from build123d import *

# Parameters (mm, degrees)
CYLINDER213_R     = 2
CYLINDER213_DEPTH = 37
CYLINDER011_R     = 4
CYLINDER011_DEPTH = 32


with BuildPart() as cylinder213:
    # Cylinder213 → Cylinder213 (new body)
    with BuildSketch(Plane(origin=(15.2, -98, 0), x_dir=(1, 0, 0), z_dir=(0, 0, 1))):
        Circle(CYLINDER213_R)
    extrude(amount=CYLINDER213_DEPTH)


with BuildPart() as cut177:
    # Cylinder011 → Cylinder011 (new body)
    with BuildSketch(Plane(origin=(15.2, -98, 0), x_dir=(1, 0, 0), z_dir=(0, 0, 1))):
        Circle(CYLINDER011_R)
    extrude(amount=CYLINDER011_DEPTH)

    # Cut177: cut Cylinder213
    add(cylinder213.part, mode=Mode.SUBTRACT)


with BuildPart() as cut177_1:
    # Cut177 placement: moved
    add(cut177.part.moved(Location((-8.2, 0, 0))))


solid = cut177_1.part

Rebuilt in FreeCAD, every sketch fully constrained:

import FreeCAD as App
import Part
import Sketcher

V = App.Vector

doc = App.newDocument("Part")
params = doc.addObject("Spreadsheet::Sheet", "Params")
for row, (alias, value) in enumerate([
    ("sketch1_diameter", "4 mm"),
    ("pad1_length", "37 mm"),
    ("sketch2_diameter", "8 mm"),
    ("pad2_length", "32 mm"),
], start=1):
    params.set(f"A{row}", alias)
    params.set(f"B{row}", "=" + value)
    params.setAlias(f"B{row}", alias)

body = doc.addObject("PartDesign::Body", "Body")

# Sketch on XY plane
sketch1 = doc.addObject("Sketcher::SketchObject", "Sketch")
body.addObject(sketch1)
sketch1.AttachmentSupport = (doc.XY_Plane, [""])
sketch1.MapMode = "FlatFace"
sketch1.addGeometry(Part.Circle(V(15.2, -98, 0), V(0, 0, 1), 2), False)
sketch1.addConstraint([
    Sketcher.Constraint("Diameter", 0, 4.0),
    Sketcher.Constraint("DistanceY", 0, 3, -1, 1, 98.0),
    Sketcher.Constraint("DistanceX", -1, 1, 0, 3, 15.2),
])
sketch1.setExpression("Constraints[0]", "Params.sketch1_diameter")
pad1 = doc.addObject("PartDesign::Pad", "Pad")
body.addObject(pad1)
pad1.Profile = sketch1
pad1.setExpression("Length", "Params.pad1_length")
body2 = doc.addObject("PartDesign::Body", "Body001")

# Sketch on XY plane
sketch2 = doc.addObject("Sketcher::SketchObject", "Sketch001")
body2.addObject(sketch2)
sketch2.AttachmentSupport = (doc.getObject("XY_Plane001"), [""])
sketch2.MapMode = "FlatFace"
sketch2.addGeometry(Part.Circle(V(15.2, -98, 0), V(0, 0, 1), 4), False)
sketch2.addConstraint([
    Sketcher.Constraint("Diameter", 0, 8.0),
    Sketcher.Constraint("DistanceY", 0, 3, -1, 1, 98.0),
    Sketcher.Constraint("DistanceX", -1, 1, 0, 3, 15.2),
])
sketch2.setExpression("Constraints[0]", "Params.sketch2_diameter")
pad2 = doc.addObject("PartDesign::Pad", "Pad001")
body2.addObject(pad2)
pad2.Profile = sketch2
pad2.setExpression("Length", "Params.pad2_length")
doc.recompute()

boolean = doc.addObject("PartDesign::Boolean", "Boolean")
body2.addObject(boolean)
boolean.Type = "Cut"
boolean.addObjects([body])
body3 = doc.addObject("PartDesign::Body", "Body002")
doc.recompute()

body2.Placement = App.Placement(V(-8.2, 0, 0), App.Rotation(V(0, 0, 1), 0))
boolean2 = doc.addObject("PartDesign::Boolean", "Boolean001")
body3.addObject(boolean2)
boolean2.Type = "Fuse"
boolean2.addObjects([body2])

doc.recompute()
